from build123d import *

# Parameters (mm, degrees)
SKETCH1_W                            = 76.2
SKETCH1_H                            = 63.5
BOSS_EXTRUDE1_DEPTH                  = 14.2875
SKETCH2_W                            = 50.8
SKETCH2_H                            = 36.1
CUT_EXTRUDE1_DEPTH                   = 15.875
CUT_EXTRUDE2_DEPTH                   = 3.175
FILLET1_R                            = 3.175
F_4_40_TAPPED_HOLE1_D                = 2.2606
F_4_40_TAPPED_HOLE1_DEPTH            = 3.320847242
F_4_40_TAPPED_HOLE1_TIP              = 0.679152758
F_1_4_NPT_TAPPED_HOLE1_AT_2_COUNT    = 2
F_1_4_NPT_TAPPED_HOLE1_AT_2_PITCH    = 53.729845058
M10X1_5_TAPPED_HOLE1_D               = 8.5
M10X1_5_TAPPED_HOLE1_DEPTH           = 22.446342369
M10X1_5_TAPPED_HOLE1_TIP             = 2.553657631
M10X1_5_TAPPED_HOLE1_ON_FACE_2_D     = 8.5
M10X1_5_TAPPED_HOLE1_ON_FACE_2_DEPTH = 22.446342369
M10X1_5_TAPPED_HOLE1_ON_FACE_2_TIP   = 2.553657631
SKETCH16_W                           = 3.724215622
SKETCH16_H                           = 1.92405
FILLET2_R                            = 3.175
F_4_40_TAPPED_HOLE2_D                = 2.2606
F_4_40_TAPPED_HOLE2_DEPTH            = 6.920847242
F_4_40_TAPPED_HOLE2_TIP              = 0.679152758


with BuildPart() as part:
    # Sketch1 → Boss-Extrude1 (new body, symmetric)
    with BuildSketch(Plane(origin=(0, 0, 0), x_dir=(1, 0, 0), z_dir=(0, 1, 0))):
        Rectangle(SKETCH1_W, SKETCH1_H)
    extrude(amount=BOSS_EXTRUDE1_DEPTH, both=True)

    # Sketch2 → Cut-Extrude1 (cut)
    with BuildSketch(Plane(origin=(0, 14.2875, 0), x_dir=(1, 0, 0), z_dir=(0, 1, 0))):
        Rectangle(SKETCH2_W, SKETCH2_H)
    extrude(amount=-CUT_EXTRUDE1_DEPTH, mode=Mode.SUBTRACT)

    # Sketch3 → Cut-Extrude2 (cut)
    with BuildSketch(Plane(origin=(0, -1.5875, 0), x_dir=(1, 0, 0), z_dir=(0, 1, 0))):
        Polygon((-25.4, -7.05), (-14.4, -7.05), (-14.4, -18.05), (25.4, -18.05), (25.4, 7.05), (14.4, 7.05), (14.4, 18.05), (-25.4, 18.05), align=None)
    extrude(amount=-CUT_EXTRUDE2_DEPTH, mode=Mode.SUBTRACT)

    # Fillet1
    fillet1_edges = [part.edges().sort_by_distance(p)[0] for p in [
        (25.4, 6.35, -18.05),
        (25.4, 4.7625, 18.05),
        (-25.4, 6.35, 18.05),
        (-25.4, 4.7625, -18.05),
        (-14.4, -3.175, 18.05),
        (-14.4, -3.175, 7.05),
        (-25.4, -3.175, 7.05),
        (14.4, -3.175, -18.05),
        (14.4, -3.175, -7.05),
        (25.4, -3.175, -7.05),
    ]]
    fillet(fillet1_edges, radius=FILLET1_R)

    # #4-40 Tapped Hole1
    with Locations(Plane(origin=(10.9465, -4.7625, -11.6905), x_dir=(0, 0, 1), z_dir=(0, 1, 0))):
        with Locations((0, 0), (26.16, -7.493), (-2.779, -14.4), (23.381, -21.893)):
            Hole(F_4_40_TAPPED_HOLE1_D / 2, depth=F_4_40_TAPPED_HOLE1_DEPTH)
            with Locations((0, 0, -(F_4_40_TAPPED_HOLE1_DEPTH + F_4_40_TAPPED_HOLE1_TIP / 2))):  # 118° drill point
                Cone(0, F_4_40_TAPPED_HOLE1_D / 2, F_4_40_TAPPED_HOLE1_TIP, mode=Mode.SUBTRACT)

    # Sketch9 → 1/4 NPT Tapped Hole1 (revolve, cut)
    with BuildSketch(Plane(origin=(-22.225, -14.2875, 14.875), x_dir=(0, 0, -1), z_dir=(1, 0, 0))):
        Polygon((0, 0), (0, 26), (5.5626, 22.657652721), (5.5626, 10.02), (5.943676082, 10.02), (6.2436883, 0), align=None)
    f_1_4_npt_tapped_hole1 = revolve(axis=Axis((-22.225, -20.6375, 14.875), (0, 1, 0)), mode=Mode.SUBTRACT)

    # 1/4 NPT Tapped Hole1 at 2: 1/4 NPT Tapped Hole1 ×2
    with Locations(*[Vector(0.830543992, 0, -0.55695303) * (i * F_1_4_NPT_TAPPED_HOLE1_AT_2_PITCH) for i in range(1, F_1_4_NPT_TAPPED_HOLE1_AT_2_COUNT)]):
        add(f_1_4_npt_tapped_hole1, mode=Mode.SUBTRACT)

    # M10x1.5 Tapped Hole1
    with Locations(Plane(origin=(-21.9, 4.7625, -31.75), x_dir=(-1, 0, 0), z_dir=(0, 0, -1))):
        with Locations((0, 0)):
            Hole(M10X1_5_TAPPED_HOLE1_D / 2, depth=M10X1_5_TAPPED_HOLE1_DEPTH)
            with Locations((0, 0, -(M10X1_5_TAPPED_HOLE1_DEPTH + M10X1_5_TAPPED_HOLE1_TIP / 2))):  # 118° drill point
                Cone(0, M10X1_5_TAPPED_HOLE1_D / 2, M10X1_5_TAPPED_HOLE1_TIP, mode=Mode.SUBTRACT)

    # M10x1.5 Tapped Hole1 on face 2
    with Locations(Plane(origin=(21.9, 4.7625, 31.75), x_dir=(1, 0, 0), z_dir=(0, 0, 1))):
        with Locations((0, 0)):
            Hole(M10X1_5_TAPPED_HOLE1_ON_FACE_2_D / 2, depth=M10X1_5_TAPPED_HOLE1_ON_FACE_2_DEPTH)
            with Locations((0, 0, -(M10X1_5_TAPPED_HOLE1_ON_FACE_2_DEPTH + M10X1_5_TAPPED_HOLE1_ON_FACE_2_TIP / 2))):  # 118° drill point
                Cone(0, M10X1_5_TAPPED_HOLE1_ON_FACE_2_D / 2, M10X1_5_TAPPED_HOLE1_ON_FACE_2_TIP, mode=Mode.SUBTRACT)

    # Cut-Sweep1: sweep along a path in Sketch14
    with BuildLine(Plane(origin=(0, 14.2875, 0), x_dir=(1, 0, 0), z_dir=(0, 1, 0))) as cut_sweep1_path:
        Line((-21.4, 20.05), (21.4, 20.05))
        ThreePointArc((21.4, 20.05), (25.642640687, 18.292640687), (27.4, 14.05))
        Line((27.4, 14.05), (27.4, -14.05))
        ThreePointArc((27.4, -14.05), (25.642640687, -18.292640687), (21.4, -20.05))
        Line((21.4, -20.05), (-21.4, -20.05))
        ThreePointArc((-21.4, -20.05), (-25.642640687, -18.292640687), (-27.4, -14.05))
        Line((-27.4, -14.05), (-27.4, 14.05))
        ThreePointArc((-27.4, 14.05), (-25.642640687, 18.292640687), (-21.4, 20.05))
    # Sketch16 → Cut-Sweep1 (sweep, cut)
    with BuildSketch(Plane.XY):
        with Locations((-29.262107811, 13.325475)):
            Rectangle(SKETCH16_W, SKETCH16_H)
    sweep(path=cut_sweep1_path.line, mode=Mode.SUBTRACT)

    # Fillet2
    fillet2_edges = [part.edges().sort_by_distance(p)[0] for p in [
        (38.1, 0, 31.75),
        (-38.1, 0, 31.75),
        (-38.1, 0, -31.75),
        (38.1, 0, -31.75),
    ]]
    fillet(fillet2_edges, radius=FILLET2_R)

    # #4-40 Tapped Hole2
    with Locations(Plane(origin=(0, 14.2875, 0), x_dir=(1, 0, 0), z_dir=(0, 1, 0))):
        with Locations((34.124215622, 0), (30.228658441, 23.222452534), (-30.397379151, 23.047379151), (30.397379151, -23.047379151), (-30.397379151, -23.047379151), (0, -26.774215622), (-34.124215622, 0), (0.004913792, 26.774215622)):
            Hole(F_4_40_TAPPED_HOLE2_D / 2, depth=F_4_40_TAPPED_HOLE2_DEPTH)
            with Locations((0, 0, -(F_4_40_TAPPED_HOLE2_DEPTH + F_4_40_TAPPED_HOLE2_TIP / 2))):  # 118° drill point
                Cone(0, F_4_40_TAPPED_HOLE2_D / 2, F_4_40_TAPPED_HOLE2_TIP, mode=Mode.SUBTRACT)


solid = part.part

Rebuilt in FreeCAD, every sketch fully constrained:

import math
import FreeCAD as App
import Part
import Sketcher

V = App.Vector
Q = App.Units.Quantity


def edges_at(feature, points):
    """Names of the edges that pass closest to the given points."""
    edges = feature.Shape.Edges
    near = lambda p: min(range(len(edges)), key=lambda i: edges[i].distToShape(Part.Vertex(*p))[0])
    return sorted({f"Edge{near(p) + 1}" for p in points})


def add_polygon(sketch, points):
    """Adds a closed chain of lines whose ends are joined by coincident constraints."""
    first, n = sketch.GeometryCount, len(points)
    for a, b in zip(points, points[1:] + points[:1]):
        sketch.addGeometry(Part.LineSegment(App.Vector(*a, 0), App.Vector(*b, 0)), False)
    for i in range(n):
        sketch.addConstraint(Sketcher.Constraint("Coincident", first + i, 2, first + (i + 1) % n, 1))

doc = App.newDocument("Part")
body = doc.addObject("PartDesign::Body", "Body")

sketch1 = body.newObject("Sketcher::SketchObject", "Sketch")
sketch1.AttachmentSupport = (doc.getObject("XZ_Plane"), [""])
sketch1.MapMode = "FlatFace"
add_polygon(sketch1, [(-38, -32), (-38, 32), (38, 32), (38, -32)])
sketch1.addConstraint(Sketcher.Constraint("Vertical", 0))
sketch1.addConstraint(Sketcher.Constraint("Horizontal", 1))
sketch1.addConstraint(Sketcher.Constraint("Vertical", 2))
sketch1.addConstraint(Sketcher.Constraint("Horizontal", 3))
sketch1.addConstraint(Sketcher.Constraint("Symmetric", 0, 2, 2, 2, -1, 1))
sketch1.addConstraint(Sketcher.Constraint("DistanceX", 1, 1, 1, 2, Q("76.2 mm")))
sketch1.addConstraint(Sketcher.Constraint("DistanceY", 0, 1, 0, 2, Q("63.5 mm")))
pad1 = body.newObject("PartDesign::Pad", "Pad")
pad1.Profile = sketch1
pad1.Length = 28.575
pad1.Midplane = True

sketch2 = body.newObject("Sketcher::SketchObject", "Sketch001")
sketch2.AttachmentSupport = (doc.getObject("XZ_Plane"), [""])
sketch2.MapMode = "FlatFace"
sketch2.AttachmentOffset = App.Placement(V(0, 0, -14.2875), App.Rotation())
add_polygon(sketch2, [(-25, -18), (-25, 18), (25, 18), (25, -18)])
sketch2.addConstraint(Sketcher.Constraint("Vertical", 0))
sketch2.addConstraint(Sketcher.Constraint("Horizontal", 1))
sketch2.addConstraint(Sketcher.Constraint("Vertical", 2))
sketch2.addConstraint(Sketcher.Constraint("Horizontal", 3))
sketch2.addConstraint(Sketcher.Constraint("Symmetric", 0, 2, 2, 2, -1, 1))
sketch2.addConstraint(Sketcher.Constraint("DistanceX", 1, 1, 1, 2, Q("50.8 mm")))
sketch2.addConstraint(Sketcher.Constraint("DistanceY", 0, 1, 0, 2, Q("36.1 mm")))
pocket1 = body.newObject("PartDesign::Pocket", "Pocket")
pocket1.Profile = sketch2
pocket1.Length = 15.875
pocket1.Reversed = True

sketch3 = body.newObject("Sketcher::SketchObject", "Sketch002")
sketch3.AttachmentSupport = (doc.getObject("XZ_Plane"), [""])
sketch3.MapMode = "FlatFace"
sketch3.AttachmentOffset = App.Placement(V(0, 0, 1.5875), App.Rotation())
add_polygon(sketch3, [(-25, 7), (-14, 7), (-14, 18), (25, 18), (25, -7), (14, -7), (14, -18), (-25, -18)])
sketch3.addConstraint(Sketcher.Constraint("Horizontal", 0))
sketch3.addConstraint(Sketcher.Constraint("Vertical", 1))
sketch3.addConstraint(Sketcher.Constraint("Horizontal", 2))
sketch3.addConstraint(Sketcher.Constraint("Vertical", 3))
sketch3.addConstraint(Sketcher.Constraint("Horizontal", 4))
sketch3.addConstraint(Sketcher.Constraint("Vertical", 5))
sketch3.addConstraint(Sketcher.Constraint("Horizontal", 6))
sketch3.addConstraint(Sketcher.Constraint("Vertical", 7))
sketch3.addConstraint(Sketcher.Constraint("Symmetric", 0, 2, 4, 2, -1, 1))
sketch3.addConstraint(Sketcher.Constraint("Symmetric", 2, 2, 6, 2, -1, 1))
sketch3.addConstraint(Sketcher.Constraint("Equal", 4, 1))
sketch3.addConstraint(Sketcher.Constraint("DistanceX", 0, 1, 0, 2, Q("11 mm")))
sketch3.addConstraint(Sketcher.Constraint("DistanceX", 2, 1, 2, 2, Q("39.8 mm")))
sketch3.addConstraint(Sketcher.Constraint("DistanceY", 3, 2, 3, 1, Q("25.1 mm")))
pocket2 = body.newObject("PartDesign::Pocket", "Pocket001")
pocket2.Profile = sketch3
pocket2.Length = 3.175
pocket2.Reversed = True
doc.recompute()

fillet = body.newObject("PartDesign::Fillet", "Fillet")
fillet.Base = (pocket2, edges_at(pocket2, [
    (25.4, 6.35, -18.05),
    (25.4, 4.763, 18.05),
    (-25.4, 6.35, 18.05),
    (-25.4, 4.763, -18.05),
    (-14.4, -3.175, 18.05),
    (-14.4, -3.175, 7.05),
    (-25.4, -3.175, 7.05),
    (14.4, -3.175, -18.05),
    (14.4, -3.175, -7.05),
    (25.4, -3.175, -7.05),
]))
fillet.Radius = 3.175

sketch4 = body.newObject("Sketcher::SketchObject", "Sketch003")
sketch4.AttachmentSupport = (doc.getObject("XZ_Plane"), [""])
sketch4.MapMode = "FlatFace"
sketch4.AttachmentOffset = App.Placement(V(0, 0, 4.7625), App.Rotation())
sketch4.addGeometry(Part.Circle(V(10.9, -11.7, 0), V(0, 0, 1), 1.1), False)
sketch4.addGeometry(Part.Circle(V(3.5, 14.5, 0), V(0, 0, 1), 1.1), False)
sketch4.addGeometry(Part.Circle(V(-3.5, -14.5, 0), V(0, 0, 1), 1.1), False)
sketch4.addGeometry(Part.Circle(V(-10.9, 11.7, 0), V(0, 0, 1), 1.1), False)
sketch4.addConstraint(Sketcher.Constraint("Equal", 0, 1))
sketch4.addConstraint(Sketcher.Constraint("Equal", 1, 2))
sketch4.addConstraint(Sketcher.Constraint("Equal", 2, 3))
sketch4.addConstraint(Sketcher.Constraint("Symmetric", 1, 3, 2, 3, -1, 1))
sketch4.addConstraint(Sketcher.Constraint("Symmetric", 0, 3, 3, 3, -1, 1))
sketch4.addConstraint(Sketcher.Constraint("Diameter", 0, Q("2.2606 mm")))
sketch4.addConstraint(Sketcher.Constraint("DistanceX", 2, 3, 0, 3, Q("14.4 mm")))
sketch4.addConstraint(Sketcher.Constraint("DistanceY", 0, 3, 1, 3, Q("26.16 mm")))
sketch4.addConstraint(Sketcher.Constraint("DistanceX", 1, 3, 0, 3, Q("7.493 mm")))
sketch4.addConstraint(Sketcher.Constraint("DistanceY", 2, 3, 0, 3, Q("2.779 mm")))
doc.recompute()
hole = body.newObject("PartDesign::Hole", "Hole")
hole.Profile = sketch4
hole.ThreadType = "None"
hole.Diameter = 2.2606
hole.DepthType = "Dimension"
hole.Depth = 3.320847
hole.DrillPoint = "Angled"
hole.DrillPointAngle = 118
hole.Reversed = True

sketch5 = body.newObject("Sketcher::SketchObject", "Sketch004")
sketch5.AttachmentSupport = (doc.getObject("YZ_Plane"), [""])
sketch5.MapMode = "FlatFace"
sketch5.AttachmentOffset = App.Placement(V(0, 0, -22.225), App.Rotation())
add_polygon(sketch5, [(11.71, 14.88), (-14.29, 14.88), (-14.29, 8.63), (-4.27, 8.93), (-4.27, 9.31), (8.37, 9.31)])
sketch5.addGeometry(Part.LineSegment(V(-14.29, 14.88, 0), V(11.71, 14.88, 0)), True)
sketch5.addConstraint(Sketcher.Constraint("Horizontal", 0))
sketch5.addConstraint(Sketcher.Constraint("Vertical", 1))
sketch5.addConstraint(Sketcher.Constraint("Vertical", 3))
sketch5.addConstraint(Sketcher.Constraint("Horizontal", 4))
sketch5.addConstraint(Sketcher.Constraint("Horizontal", 6))
sketch5.addConstraint(Sketcher.Constraint("Coincident", 6, 1, 0, 2))
sketch5.addConstraint(Sketcher.Constraint("Equal", 0, 6))
sketch5.addConstraint(Sketcher.Constraint("DistanceX", 0, 2, 0, 1, Q("26 mm")))
sketch5.addConstraint(Sketcher.Constraint("Angle", 5, Q("59 deg")))
sketch5.addConstraint(Sketcher.Constraint("DistanceX", 1, 2, 2, 2, Q("10.02 mm")))
sketch5.addConstraint(Sketcher.Constraint("DistanceY", -1, 1, 0, 2, Q("14.875 mm")))
sketch5.addConstraint(Sketcher.Constraint("DistanceY", 1, 2, 1, 1, Q("6.243688 mm")))
sketch5.addConstraint(Sketcher.Constraint("DistanceX", 0, 2, -1, 1, Q("14.2875 mm")))
sketch5.addConstraint(Sketcher.Constraint("DistanceY", -1, 1, 3, 2, Q("9.3124 mm")))
sketch5.addConstraint(Sketcher.Constraint("Distance", 2, Q("10.02449 mm")))
groove = body.newObject("PartDesign::Groove", "Groove")
groove.Profile = sketch5
groove.ReferenceAxis = (sketch5, ["Axis0"])
groove.Angle = 360
doc.recompute()

datumline = body.newObject("PartDesign::Line", "DatumLine")
datumline.Placement = App.Placement(V(0, 0, 0), App.Rotation(V(0, 0, 1), V(0.830543992, 0, -0.55695303)))
linearpattern = body.newObject("PartDesign::LinearPattern", "LinearPattern")
linearpattern.Originals = [groove]
linearpattern.Direction = (datumline, [""])
linearpattern.Mode = "offset"
linearpattern.Offset = 53.729845
linearpattern.Occurrences = 2
body.Tip = linearpattern

sketch6 = body.newObject("Sketcher::SketchObject", "Sketch005")
sketch6.AttachmentSupport = (doc.getObject("XY_Plane"), [""])
sketch6.MapMode = "FlatFace"
sketch6.AttachmentOffset = App.Placement(V(0, 0, -31.75), App.Rotation())
sketch6.addGeometry(Part.Circle(V(-21.9, 4.8, 0), V(0, 0, 1), 4.2), False)
sketch6.addConstraint(Sketcher.Constraint("Diameter", 0, Q("8.5 mm")))
sketch6.addConstraint(Sketcher.Constraint("DistanceX", 0, 3, -1, 1, Q("21.9 mm")))
sketch6.addConstraint(Sketcher.Constraint("DistanceY", -1, 1, 0, 3, Q("4.7625 mm")))
doc.recompute()
hole2 = body.newObject("PartDesign::Hole", "Hole001")
hole2.Profile = sketch6
hole2.ThreadType = "None"
hole2.Diameter = 8.5
hole2.DepthType = "Dimension"
hole2.Depth = 22.446342
hole2.DrillPoint = "Angled"
hole2.DrillPointAngle = 118
hole2.Reversed = True

sketch7 = body.newObject("Sketcher::SketchObject", "Sketch006")
sketch7.AttachmentSupport = (doc.getObject("XY_Plane"), [""])
sketch7.MapMode = "FlatFace"
sketch7.AttachmentOffset = App.Placement(V(0, 0, 31.75), App.Rotation())
sketch7.addGeometry(Part.Circle(V(21.9, 4.8, 0), V(0, 0, 1), 4.2), False)
sketch7.addConstraint(Sketcher.Constraint("Diameter", 0, Q("8.5 mm")))
sketch7.addConstraint(Sketcher.Constraint("DistanceX", -1, 1, 0, 3, Q("21.9 mm")))
sketch7.addConstraint(Sketcher.Constraint("DistanceY", -1, 1, 0, 3, Q("4.7625 mm")))
doc.recompute()
hole3 = body.newObject("PartDesign::Hole", "Hole002")
hole3.Profile = sketch7
hole3.ThreadType = "None"
hole3.Diameter = 8.5
hole3.DepthType = "Dimension"
hole3.Depth = 22.446342
hole3.DrillPoint = "Angled"
hole3.DrillPointAngle = 118

sketch8 = body.newObject("Sketcher::SketchObject", "Sketch007")
sketch8.AttachmentSupport = (doc.getObject("XY_Plane"), [""])
sketch8.MapMode = "FlatFace"
add_polygon(sketch8, [(-31.1, 14.3), (-31.1, 12.4), (-27.4, 12.4), (-27.4, 14.3)])
sketch8.addConstraint(Sketcher.Constraint("Vertical", 0))
sketch8.addConstraint(Sketcher.Constraint("Horizontal", 1))
sketch8.addConstraint(Sketcher.Constraint("Vertical", 2))
sketch8.addConstraint(Sketcher.Constraint("Horizontal", 3))
sketch8.addConstraint(Sketcher.Constraint("DistanceX", 1, 2, -1, 1, Q("27.4 mm")))
sketch8.addConstraint(Sketcher.Constraint("DistanceY", 0, 2, 0, 1, Q("1.92405 mm")))
sketch8.addConstraint(Sketcher.Constraint("DistanceY", -1, 1, 2, 2, Q("14.2875 mm")))
sketch8.addConstraint(Sketcher.Constraint("DistanceX", 1, 1, 1, 2, Q("3.724216 mm")))

sketch9 = body.newObject("Sketcher::SketchObject", "Sketch008")
sketch9.AttachmentSupport = (doc.getObject("XZ_Plane"), [""])
sketch9.MapMode = "FlatFace"
sketch9.AttachmentOffset = App.Placement(V(0, 0, -14.2875), App.Rotation())
sketch9.addGeometry(Part.LineSegment(V(-21, -20, 0), V(21, -20, 0)), False)
sketch9.addGeometry(Part.ArcOfCircle(Part.Circle(V(21, -14, 0), V(0, 0, 1), 6), math.radians(-90), math.radians(0)), False)
sketch9.addGeometry(Part.LineSegment(V(27, -14, 0), V(27, 14, 0)), False)
sketch9.addGeometry(Part.ArcOfCircle(Part.Circle(V(21, 14, 0), V(0, 0, 1), 6), math.radians(0), math.radians(90)), False)
sketch9.addGeometry(Part.LineSegment(V(21, 20, 0), V(-21, 20, 0)), False)
sketch9.addGeometry(Part.ArcOfCircle(Part.Circle(V(-21, 14, 0), V(0, 0, 1), 6), math.radians(90), math.radians(180)), False)
sketch9.addGeometry(Part.LineSegment(V(-27, 14, 0), V(-27, -14, 0)), False)
sketch9.addGeometry(Part.ArcOfCircle(Part.Circle(V(-21, -14, 0), V(0, 0, 1), 6), math.radians(180), math.radians(270)), False)
sketch9.addConstraint(Sketcher.Constraint("Tangent", 0, 2, 1, 1))
sketch9.addConstraint(Sketcher.Constraint("Tangent", 1, 2, 2, 1))
sketch9.addConstraint(Sketcher.Constraint("Tangent", 2, 2, 3, 1))
sketch9.addConstraint(Sketcher.Constraint("Tangent", 3, 2, 4, 1))
sketch9.addConstraint(Sketcher.Constraint("Tangent", 4, 2, 5, 1))
sketch9.addConstraint(Sketcher.Constraint("Tangent", 5, 2, 6, 1))
sketch9.addConstraint(Sketcher.Constraint("Tangent", 6, 2, 7, 1))
sketch9.addConstraint(Sketcher.Constraint("Tangent", 7, 2, 0, 1))
sketch9.addConstraint(Sketcher.Constraint("Horizontal", 0))
sketch9.addConstraint(Sketcher.Constraint("Vertical", 2))
sketch9.addConstraint(Sketcher.Constraint("Horizontal", 4))
sketch9.addConstraint(Sketcher.Constraint("Vertical", 6))
sketch9.addConstraint(Sketcher.Constraint("Equal", 1, 3))
sketch9.addConstraint(Sketcher.Constraint("Equal", 3, 5))
sketch9.addConstraint(Sketcher.Constraint("Equal", 5, 7))
sketch9.addConstraint(Sketcher.Constraint("Symmetric", 1, 3, 5, 3, -1, 1))
sketch9.addConstraint(Sketcher.Constraint("Radius", 1, Q("6 mm")))
sketch9.addConstraint(Sketcher.Constraint("DistanceX", 0, 1, 0, 2, Q("42.8 mm")))
sketch9.addConstraint(Sketcher.Constraint("DistanceY", 2, 1, 2, 2, Q("28.1 mm")))
doc.recompute()

subtractivepipe = body.newObject("PartDesign::SubtractivePipe", "SubtractivePipe")
subtractivepipe.Profile = sketch8
subtractivepipe.Spine = (sketch9, ["Edge1", "Edge2", "Edge3", "Edge4", "Edge5", "Edge6", "Edge7", "Edge8"])
doc.recompute()

fillet2 = body.newObject("PartDesign::Fillet", "Fillet001")
fillet2.Base = (subtractivepipe, edges_at(subtractivepipe, [
    (38.1, 0, 31.75),
    (-38.1, 0, 31.75),
    (-38.1, 0, -31.75),
    (38.1, 0, -31.75),
]))
fillet2.Radius = 3.175

sketch10 = body.newObject("Sketcher::SketchObject", "Sketch009")
sketch10.AttachmentSupport = (doc.getObject("XZ_Plane"), [""])
sketch10.MapMode = "FlatFace"
sketch10.AttachmentOffset = App.Placement(V(0, 0, -14.2875), App.Rotation())
sketch10.addGeometry(Part.Circle(V(34.1, 0, 0), V(0, 0, 1), 1.1), False)
sketch10.addGeometry(Part.Circle(V(30.2, -23.2, 0), V(0, 0, 1), 1.1), False)
sketch10.addGeometry(Part.Circle(V(-30.4, -23, 0), V(0, 0, 1), 1.1), False)
sketch10.addGeometry(Part.Circle(V(30.4, 23, 0), V(0, 0, 1), 1.1), False)
sketch10.addGeometry(Part.Circle(V(-30.4, 23, 0), V(0, 0, 1), 1.1), False)
sketch10.addGeometry(Part.Circle(V(0, 26.8, 0), V(0, 0, 1), 1.1), False)
sketch10.addGeometry(Part.Circle(V(-34.1, 0, 0), V(0, 0, 1), 1.1), False)
sketch10.addGeometry(Part.Circle(V(0, -26.8, 0), V(0, 0, 1), 1.1), False)
sketch10.addConstraint(Sketcher.Constraint("Equal", 0, 1))
sketch10.addConstraint(Sketcher.Constraint("Equal", 1, 2))
sketch10.addConstraint(Sketcher.Constraint("Equal", 2, 3))
sketch10.addConstraint(Sketcher.Constraint("Equal", 3, 4))
sketch10.addConstraint(Sketcher.Constraint("Equal", 4, 5))
sketch10.addConstraint(Sketcher.Constraint("Equal", 5, 6))
sketch10.addConstraint(Sketcher.Constraint("Equal", 6, 7))
sketch10.addConstraint(Sketcher.Constraint("Symmetric", 2, 3, 3, 3, -1, 1))
sketch10.addConstraint(Sketcher.Constraint("Symmetric", 0, 3, 6, 3, -1, 1))
sketch10.addConstraint(Sketcher.Constraint("Symmetric", 3, 3, 4, 3, -2))
sketch10.addConstraint(Sketcher.Constraint("PointOnObject", 0, 3, -1))
sketch10.addConstraint(Sketcher.Constraint("PointOnObject", 5, 3, -2))
sketch10.addConstraint(Sketcher.Constraint("Diameter", 0, Q("2.2606 mm")))
sketch10.addConstraint(Sketcher.Constraint("DistanceX", 7, 3, 0, 3, Q("34.119302 mm")))
sketch10.addConstraint(Sketcher.Constraint("DistanceX", -1, 1, 1, 3, Q("30.228658 mm")))
sketch10.addConstraint(Sketcher.Constraint("DistanceX", 2, 3, -1, 1, Q("30.397379 mm")))
sketch10.addConstraint(Sketcher.Constraint("DistanceY", 2, 3, -1, 1, Q("23.047379 mm")))
sketch10.addConstraint(Sketcher.Constraint("DistanceY", 1, 3, 3, 3, Q("46.269832 mm")))
sketch10.addConstraint(Sketcher.Constraint("DistanceY", 1, 3, 5, 3, Q("49.996668 mm")))
sketch10.addConstraint(Sketcher.Constraint("DistanceX", 6, 3, 0, 3, Q("68.248431 mm")))
sketch10.addConstraint(Sketcher.Constraint("DistanceY", 7, 3, 5, 3, Q("53.548431 mm")))
doc.recompute()
hole4 = body.newObject("PartDesign::Hole", "Hole003")
hole4.Profile = sketch10
hole4.ThreadType = "None"
hole4.Diameter = 2.2606
hole4.DepthType = "Dimension"
hole4.Depth = 6.920847
hole4.DrillPoint = "Angled"
hole4.DrillPointAngle = 118
hole4.Reversed = True

doc.recompute()
